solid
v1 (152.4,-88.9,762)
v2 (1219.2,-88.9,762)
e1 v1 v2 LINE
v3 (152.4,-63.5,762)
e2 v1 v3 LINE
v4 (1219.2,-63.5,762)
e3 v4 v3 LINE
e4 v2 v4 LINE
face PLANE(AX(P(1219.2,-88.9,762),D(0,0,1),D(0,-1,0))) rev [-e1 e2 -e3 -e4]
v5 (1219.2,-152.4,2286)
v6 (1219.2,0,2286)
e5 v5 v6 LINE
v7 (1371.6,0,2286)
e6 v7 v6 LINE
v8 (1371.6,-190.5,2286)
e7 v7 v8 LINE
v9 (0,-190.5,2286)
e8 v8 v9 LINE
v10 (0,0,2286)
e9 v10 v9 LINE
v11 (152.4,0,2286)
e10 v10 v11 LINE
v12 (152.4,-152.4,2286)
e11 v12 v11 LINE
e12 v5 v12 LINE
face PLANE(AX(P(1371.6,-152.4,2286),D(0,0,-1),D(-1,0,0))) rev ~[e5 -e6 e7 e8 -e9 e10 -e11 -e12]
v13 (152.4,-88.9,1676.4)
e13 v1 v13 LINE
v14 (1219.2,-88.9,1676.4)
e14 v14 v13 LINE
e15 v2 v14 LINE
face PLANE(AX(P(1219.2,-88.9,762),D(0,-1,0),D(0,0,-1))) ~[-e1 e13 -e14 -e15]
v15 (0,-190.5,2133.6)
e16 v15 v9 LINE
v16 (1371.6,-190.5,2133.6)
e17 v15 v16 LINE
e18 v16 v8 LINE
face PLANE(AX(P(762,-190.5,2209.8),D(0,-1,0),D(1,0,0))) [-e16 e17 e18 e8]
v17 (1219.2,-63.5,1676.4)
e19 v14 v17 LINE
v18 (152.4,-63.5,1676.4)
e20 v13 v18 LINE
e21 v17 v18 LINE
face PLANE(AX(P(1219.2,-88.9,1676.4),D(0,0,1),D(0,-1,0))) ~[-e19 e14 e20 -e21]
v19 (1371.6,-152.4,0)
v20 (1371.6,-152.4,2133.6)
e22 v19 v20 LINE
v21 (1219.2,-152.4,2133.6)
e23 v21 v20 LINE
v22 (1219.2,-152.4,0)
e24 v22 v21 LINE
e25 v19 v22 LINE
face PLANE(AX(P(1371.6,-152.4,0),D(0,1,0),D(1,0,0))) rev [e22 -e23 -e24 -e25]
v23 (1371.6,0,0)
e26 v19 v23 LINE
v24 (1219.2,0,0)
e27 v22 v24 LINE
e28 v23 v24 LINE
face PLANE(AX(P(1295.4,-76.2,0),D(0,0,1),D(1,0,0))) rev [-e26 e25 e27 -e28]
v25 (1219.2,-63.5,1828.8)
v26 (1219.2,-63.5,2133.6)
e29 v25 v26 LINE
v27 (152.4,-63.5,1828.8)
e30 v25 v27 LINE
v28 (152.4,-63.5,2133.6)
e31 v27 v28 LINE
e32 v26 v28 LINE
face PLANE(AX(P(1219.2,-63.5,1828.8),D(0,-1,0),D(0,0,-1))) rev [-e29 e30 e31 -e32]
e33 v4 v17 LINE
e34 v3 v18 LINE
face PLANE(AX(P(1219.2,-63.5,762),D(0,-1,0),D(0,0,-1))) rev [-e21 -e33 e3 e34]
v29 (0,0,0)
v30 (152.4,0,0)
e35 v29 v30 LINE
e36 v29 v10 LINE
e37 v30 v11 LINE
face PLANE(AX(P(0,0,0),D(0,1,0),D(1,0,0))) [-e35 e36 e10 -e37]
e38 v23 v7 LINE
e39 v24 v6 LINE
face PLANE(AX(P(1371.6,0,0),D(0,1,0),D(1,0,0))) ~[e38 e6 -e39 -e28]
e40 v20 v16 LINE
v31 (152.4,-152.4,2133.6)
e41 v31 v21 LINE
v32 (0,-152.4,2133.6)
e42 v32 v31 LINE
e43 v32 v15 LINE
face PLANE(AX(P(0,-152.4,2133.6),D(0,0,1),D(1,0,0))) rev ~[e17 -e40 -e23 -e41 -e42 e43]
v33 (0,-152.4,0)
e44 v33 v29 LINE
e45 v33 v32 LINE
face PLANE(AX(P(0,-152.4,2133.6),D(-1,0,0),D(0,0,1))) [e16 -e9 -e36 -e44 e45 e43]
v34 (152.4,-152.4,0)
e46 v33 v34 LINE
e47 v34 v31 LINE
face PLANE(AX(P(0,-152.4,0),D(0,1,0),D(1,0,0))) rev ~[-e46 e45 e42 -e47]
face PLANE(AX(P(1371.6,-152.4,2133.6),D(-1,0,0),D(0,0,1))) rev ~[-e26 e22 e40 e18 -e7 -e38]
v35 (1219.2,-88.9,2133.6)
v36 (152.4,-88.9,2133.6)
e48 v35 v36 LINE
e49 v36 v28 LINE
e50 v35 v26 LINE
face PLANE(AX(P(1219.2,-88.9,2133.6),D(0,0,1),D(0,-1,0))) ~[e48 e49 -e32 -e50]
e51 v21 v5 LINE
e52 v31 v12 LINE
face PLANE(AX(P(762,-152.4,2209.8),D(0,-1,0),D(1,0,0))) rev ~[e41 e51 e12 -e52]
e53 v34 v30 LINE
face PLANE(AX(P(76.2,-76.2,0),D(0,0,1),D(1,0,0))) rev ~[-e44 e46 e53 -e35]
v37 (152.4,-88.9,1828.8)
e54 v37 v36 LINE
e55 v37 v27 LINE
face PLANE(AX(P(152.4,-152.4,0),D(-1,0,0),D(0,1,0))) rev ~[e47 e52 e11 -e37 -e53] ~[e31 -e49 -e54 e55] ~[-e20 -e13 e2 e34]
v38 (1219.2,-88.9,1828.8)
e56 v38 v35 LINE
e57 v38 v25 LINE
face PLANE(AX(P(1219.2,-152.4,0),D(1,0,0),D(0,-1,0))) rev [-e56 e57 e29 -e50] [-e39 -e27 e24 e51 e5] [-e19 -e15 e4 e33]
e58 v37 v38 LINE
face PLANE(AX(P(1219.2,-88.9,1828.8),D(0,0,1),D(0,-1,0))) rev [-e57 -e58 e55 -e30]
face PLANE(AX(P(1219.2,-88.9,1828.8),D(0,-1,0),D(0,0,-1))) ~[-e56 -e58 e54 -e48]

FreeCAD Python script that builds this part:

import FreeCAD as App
import Part
import Sketcher
from FreeCAD import Vector
Q = App.Units.Quantity

doc = App.newDocument("Part")
body = doc.addObject("PartDesign::Body", "Body")

sketch1 = doc.addObject("Sketcher::SketchObject", "Sketch")
body.addObject(sketch1)
sketch1.AttachmentSupport = (doc.XY_Plane, [""])
sketch1.MapMode = "FlatFace"
sketch1.addGeometry(Part.LineSegment(Vector(0, 0, 0), Vector(0, -152, 0)), False)
sketch1.addGeometry(Part.LineSegment(Vector(0, -152, 0), Vector(152, -152, 0)), False)
sketch1.addGeometry(Part.LineSegment(Vector(152, -152, 0), Vector(152, 0, 0)), False)
sketch1.addGeometry(Part.LineSegment(Vector(152, 0, 0), Vector(0, 0, 0)), False)
sketch1.addConstraint(Sketcher.Constraint("Coincident", 0, 2, 1, 1))
sketch1.addConstraint(Sketcher.Constraint("Coincident", 1, 2, 2, 1))
sketch1.addConstraint(Sketcher.Constraint("Coincident", 2, 2, 3, 1))
sketch1.addConstraint(Sketcher.Constraint("Coincident", 3, 2, 0, 1))
sketch1.addConstraint(Sketcher.Constraint("Vertical", 0))
sketch1.addConstraint(Sketcher.Constraint("Horizontal", 1))
sketch1.addConstraint(Sketcher.Constraint("Vertical", 2))
sketch1.addConstraint(Sketcher.Constraint("Horizontal", 3))
sketch1.addConstraint(Sketcher.Constraint("Coincident", 3, 2, -1, 1))
sketch1.addConstraint(Sketcher.Constraint("Equal", 3, 0))
sketch1.addConstraint(Sketcher.Constraint("DistanceX", 1, 1, 1, 2, Q("6 in")))
pad1 = doc.addObject("PartDesign::Pad", "Pad")
body.addObject(pad1)
pad1.Profile = sketch1
pad1.Length = Q("90 in")

sketch2 = doc.addObject("Sketcher::SketchObject", "Sketch001")
body.addObject(sketch2)
sketch2.AttachmentSupport = (doc.YZ_Plane, [""])
sketch2.MapMode = "FlatFace"
sketch2.AttachmentOffset = App.Placement(Vector(0, 0, 6 * 25.4), App.Rotation())
sketch2.addGeometry(Part.LineSegment(Vector(-89, 1676, 0), Vector(-89, 762, 0)), False)
sketch2.addGeometry(Part.LineSegment(Vector(-89, 762, 0), Vector(-64, 762, 0)), False)
sketch2.addGeometry(Part.LineSegment(Vector(-64, 762, 0), Vector(-64, 1676, 0)), False)
sketch2.addGeometry(Part.LineSegment(Vector(-64, 1676, 0), Vector(-89, 1676, 0)), False)
sketch2.addGeometry(Part.LineSegment(Vector(-89, 2134, 0), Vector(-89, 1829, 0)), False)
sketch2.addGeometry(Part.LineSegment(Vector(-89, 1829, 0), Vector(-64, 1829, 0)), False)
sketch2.addGeometry(Part.LineSegment(Vector(-64, 1829, 0), Vector(-64, 2134, 0)), False)
sketch2.addGeometry(Part.LineSegment(Vector(-64, 2134, 0), Vector(-89, 2134, 0)), False)
sketch2.addConstraint(Sketcher.Constraint("Coincident", 0, 2, 1, 1))
sketch2.addConstraint(Sketcher.Constraint("Coincident", 1, 2, 2, 1))
sketch2.addConstraint(Sketcher.Constraint("Coincident", 2, 2, 3, 1))
sketch2.addConstraint(Sketcher.Constraint("Coincident", 3, 2, 0, 1))
sketch2.addConstraint(Sketcher.Constraint("Coincident", 4, 2, 5, 1))
sketch2.addConstraint(Sketcher.Constraint("Coincident", 5, 2, 6, 1))
sketch2.addConstraint(Sketcher.Constraint("Coincident", 6, 2, 7, 1))
sketch2.addConstraint(Sketcher.Constraint("Coincident", 7, 2, 4, 1))
sketch2.addConstraint(Sketcher.Constraint("Vertical", 0))
sketch2.addConstraint(Sketcher.Constraint("Horizontal", 1))
sketch2.addConstraint(Sketcher.Constraint("Vertical", 2))
sketch2.addConstraint(Sketcher.Constraint("Horizontal", 3))
sketch2.addConstraint(Sketcher.Constraint("Vertical", 4))
sketch2.addConstraint(Sketcher.Constraint("Horizontal", 5))
sketch2.addConstraint(Sketcher.Constraint("Vertical", 6))
sketch2.addConstraint(Sketcher.Constraint("Horizontal", 7))
sketch2.addConstraint(Sketcher.Constraint("Vertical", 3, 2, 4, 2))
sketch2.addConstraint(Sketcher.Constraint("Vertical", 2, 2, 5, 2))
sketch2.addConstraint(Sketcher.Constraint("DistanceX", 1, 1, 1, 2, Q("1 in")))
sketch2.addConstraint(Sketcher.Constraint("DistanceY", 0, 2, 0, 1, Q("36 in")))
sketch2.addConstraint(Sketcher.Constraint("DistanceY", 4, 2, 4, 1, Q("12 in")))
sketch2.addConstraint(Sketcher.Constraint("DistanceY", -1, 1, 0, 2, Q("30 in")))
sketch2.addConstraint(Sketcher.Constraint("DistanceY", -1, 1, 4, 2, Q("72 in")))
sketch2.addConstraint(Sketcher.Constraint("DistanceX", 0, 2, -1, 1, Q("3.5 in")))
pad2 = doc.addObject("PartDesign::Pad", "Pad001")
body.addObject(pad2)
pad2.Profile = sketch2
pad2.Length = Q("21 in")
body2 = doc.addObject("PartDesign::Body", "Body001")
doc.recompute()

body2.BaseFeature = body
doc.recompute()

mirroring = doc.addObject("Part::Mirroring", "Mirroring")
mirroring.Source = body
mirroring.Base = Vector(685.8, -76.2, 1219.2)
mirroring.Normal = Vector(1, 0, 0)
body3 = doc.addObject("PartDesign::Body", "Body002")
body3.BaseFeature = mirroring
boolean = doc.addObject("PartDesign::Boolean", "Boolean")
body2.addObject(boolean)
boolean.Type = "Fuse"
boolean.addObjects([body3])
doc.recompute()

sketch3 = doc.addObject("Sketcher::SketchObject", "Sketch002")
body2.addObject(sketch3)
sketch3.AttachmentSupport = (doc.getObject("XZ_Plane001"), [""])
sketch3.MapMode = "FlatFace"
sketch3.AttachmentOffset = App.Placement(Vector(0, 0, 6 * 25.4), App.Rotation())
sketch3.addGeometry(Part.LineSegment(Vector(1372, 2134, 0), Vector(1372, 2286, 0)), False)
sketch3.addGeometry(Part.LineSegment(Vector(1372, 2286, 0), Vector(0, 2286, 0)), False)
sketch3.addGeometry(Part.LineSegment(Vector(0, 2286, 0), Vector(0, 2134, 0)), False)
sketch3.addGeometry(Part.LineSegment(Vector(0, 2134, 0), Vector(1372, 2134, 0)), False)
sketch3.addConstraint(Sketcher.Constraint("Coincident", 0, 2, 1, 1))
sketch3.addConstraint(Sketcher.Constraint("Coincident", 1, 2, 2, 1))
sketch3.addConstraint(Sketcher.Constraint("Coincident", 2, 2, 3, 1))
sketch3.addConstraint(Sketcher.Constraint("Coincident", 3, 2, 0, 1))
sketch3.addConstraint(Sketcher.Constraint("Vertical", 0))
sketch3.addConstraint(Sketcher.Constraint("Horizontal", 1))
sketch3.addConstraint(Sketcher.Constraint("Vertical", 2))
sketch3.addConstraint(Sketcher.Constraint("Horizontal", 3))
sketch3.addConstraint(Sketcher.Constraint("PointOnObject", 1, 2, -2))
sketch3.addConstraint(Sketcher.Constraint("DistanceX", 1, 2, 1, 1, Q("54 in")))
sketch3.addConstraint(Sketcher.Constraint("DistanceY", 0, 1, 0, 2, Q("6 in")))
sketch3.addConstraint(Sketcher.Constraint("DistanceY", -1, 1, 0, 2, Q("90 in")))
pad3 = doc.addObject("PartDesign::Pad", "Pad002")
body2.addObject(pad3)
pad3.Profile = sketch3
pad3.Length = Q("1.5 in")
mirroring.Visibility = False

doc.recompute()
